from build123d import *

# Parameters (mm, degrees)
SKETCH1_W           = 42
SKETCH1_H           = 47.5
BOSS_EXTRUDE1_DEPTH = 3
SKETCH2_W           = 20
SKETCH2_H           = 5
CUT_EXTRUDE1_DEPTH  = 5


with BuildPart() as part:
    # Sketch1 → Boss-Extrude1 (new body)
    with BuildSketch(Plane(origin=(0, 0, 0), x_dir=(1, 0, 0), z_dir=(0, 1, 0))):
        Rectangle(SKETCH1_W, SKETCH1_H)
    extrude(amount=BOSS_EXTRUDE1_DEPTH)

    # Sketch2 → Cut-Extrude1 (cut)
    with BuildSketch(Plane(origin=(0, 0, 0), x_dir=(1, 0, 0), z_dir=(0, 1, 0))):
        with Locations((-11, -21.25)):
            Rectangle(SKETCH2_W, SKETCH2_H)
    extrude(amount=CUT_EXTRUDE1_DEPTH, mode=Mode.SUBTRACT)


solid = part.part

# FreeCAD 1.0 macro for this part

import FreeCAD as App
import Part
import Sketcher
from FreeCAD import Vector

doc = App.newDocument("Part")
body = doc.addObject("PartDesign::Body", "Body")

# Sketch on XZ plane
sketch1 = body.newObject("Sketcher::SketchObject", "Sketch")
sketch1.AttachmentSupport = (doc.getObject("XZ_Plane"), [""])
sketch1.MapMode = "FlatFace"
sketch1.addGeometry([
    Part.LineSegment(Vector(-21, -24, 0), Vector(-21, 24, 0)),
    Part.LineSegment(Vector(-21, 24, 0), Vector(21, 24, 0)),
    Part.LineSegment(Vector(21, 24, 0), Vector(21, -24, 0)),
    Part.LineSegment(Vector(21, -24, 0), Vector(-21, -24, 0)),
], False)
sketch1.addConstraint([
    Sketcher.Constraint("Coincident", 0, 2, 1, 1),
    Sketcher.Constraint("Coincident", 1, 2, 2, 1),
    Sketcher.Constraint("Coincident", 2, 2, 3, 1),
    Sketcher.Constraint("Coincident", 3, 2, 0, 1),
    Sketcher.Constraint("Vertical", 0),
    Sketcher.Constraint("Horizontal", 1),
    Sketcher.Constraint("Vertical", 2),
    Sketcher.Constraint("Horizontal", 3),
    Sketcher.Constraint("Symmetric", 0, 2, 2, 2, -1, 1),
    Sketcher.Constraint("DistanceX", 1, 1, 1, 2, 42.0),
    Sketcher.Constraint("DistanceY", 0, 1, 0, 2, 47.5),
])
pad1 = body.newObject("PartDesign::Pad", "Pad")
pad1.Profile = sketch1
pad1.Length = 3
pad1.Reversed = True

# Sketch on XZ plane
sketch2 = body.newObject("Sketcher::SketchObject", "Sketch001")
sketch2.AttachmentSupport = (doc.getObject("XZ_Plane"), [""])
sketch2.MapMode = "FlatFace"
sketch2.addGeometry([
    Part.LineSegment(Vector(-21, 19, 0), Vector(-21, 24, 0)),
    Part.LineSegment(Vector(-21, 24, 0), Vector(-1, 24, 0)),
    Part.LineSegment(Vector(-1, 24, 0), Vector(-1, 19, 0)),
    Part.LineSegment(Vector(-1, 19, 0), Vector(-21, 19, 0)),
], False)
sketch2.addConstraint([
    Sketcher.Constraint("Coincident", 0, 2, 1, 1),
    Sketcher.Constraint("Coincident", 1, 2, 2, 1),
    Sketcher.Constraint("Coincident", 2, 2, 3, 1),
    Sketcher.Constraint("Coincident", 3, 2, 0, 1),
    Sketcher.Constraint("Vertical", 0),
    Sketcher.Constraint("Horizontal", 1),
    Sketcher.Constraint("Vertical", 2),
    Sketcher.Constraint("Horizontal", 3),
    Sketcher.Constraint("DistanceX", 1, 1, 1, 2, 20.0),
    Sketcher.Constraint("DistanceY", 0, 1, 0, 2, 5.0),
    Sketcher.Constraint("DistanceX", 0, 2, -1, 1, 21.0),
    Sketcher.Constraint("DistanceY", -1, 1, 0, 2, 23.75),
])
pocket1 = body.newObject("PartDesign::Pocket", "Pocket")
pocket1.Profile = sketch2
pocket1.Length = 5

doc.recompute()
